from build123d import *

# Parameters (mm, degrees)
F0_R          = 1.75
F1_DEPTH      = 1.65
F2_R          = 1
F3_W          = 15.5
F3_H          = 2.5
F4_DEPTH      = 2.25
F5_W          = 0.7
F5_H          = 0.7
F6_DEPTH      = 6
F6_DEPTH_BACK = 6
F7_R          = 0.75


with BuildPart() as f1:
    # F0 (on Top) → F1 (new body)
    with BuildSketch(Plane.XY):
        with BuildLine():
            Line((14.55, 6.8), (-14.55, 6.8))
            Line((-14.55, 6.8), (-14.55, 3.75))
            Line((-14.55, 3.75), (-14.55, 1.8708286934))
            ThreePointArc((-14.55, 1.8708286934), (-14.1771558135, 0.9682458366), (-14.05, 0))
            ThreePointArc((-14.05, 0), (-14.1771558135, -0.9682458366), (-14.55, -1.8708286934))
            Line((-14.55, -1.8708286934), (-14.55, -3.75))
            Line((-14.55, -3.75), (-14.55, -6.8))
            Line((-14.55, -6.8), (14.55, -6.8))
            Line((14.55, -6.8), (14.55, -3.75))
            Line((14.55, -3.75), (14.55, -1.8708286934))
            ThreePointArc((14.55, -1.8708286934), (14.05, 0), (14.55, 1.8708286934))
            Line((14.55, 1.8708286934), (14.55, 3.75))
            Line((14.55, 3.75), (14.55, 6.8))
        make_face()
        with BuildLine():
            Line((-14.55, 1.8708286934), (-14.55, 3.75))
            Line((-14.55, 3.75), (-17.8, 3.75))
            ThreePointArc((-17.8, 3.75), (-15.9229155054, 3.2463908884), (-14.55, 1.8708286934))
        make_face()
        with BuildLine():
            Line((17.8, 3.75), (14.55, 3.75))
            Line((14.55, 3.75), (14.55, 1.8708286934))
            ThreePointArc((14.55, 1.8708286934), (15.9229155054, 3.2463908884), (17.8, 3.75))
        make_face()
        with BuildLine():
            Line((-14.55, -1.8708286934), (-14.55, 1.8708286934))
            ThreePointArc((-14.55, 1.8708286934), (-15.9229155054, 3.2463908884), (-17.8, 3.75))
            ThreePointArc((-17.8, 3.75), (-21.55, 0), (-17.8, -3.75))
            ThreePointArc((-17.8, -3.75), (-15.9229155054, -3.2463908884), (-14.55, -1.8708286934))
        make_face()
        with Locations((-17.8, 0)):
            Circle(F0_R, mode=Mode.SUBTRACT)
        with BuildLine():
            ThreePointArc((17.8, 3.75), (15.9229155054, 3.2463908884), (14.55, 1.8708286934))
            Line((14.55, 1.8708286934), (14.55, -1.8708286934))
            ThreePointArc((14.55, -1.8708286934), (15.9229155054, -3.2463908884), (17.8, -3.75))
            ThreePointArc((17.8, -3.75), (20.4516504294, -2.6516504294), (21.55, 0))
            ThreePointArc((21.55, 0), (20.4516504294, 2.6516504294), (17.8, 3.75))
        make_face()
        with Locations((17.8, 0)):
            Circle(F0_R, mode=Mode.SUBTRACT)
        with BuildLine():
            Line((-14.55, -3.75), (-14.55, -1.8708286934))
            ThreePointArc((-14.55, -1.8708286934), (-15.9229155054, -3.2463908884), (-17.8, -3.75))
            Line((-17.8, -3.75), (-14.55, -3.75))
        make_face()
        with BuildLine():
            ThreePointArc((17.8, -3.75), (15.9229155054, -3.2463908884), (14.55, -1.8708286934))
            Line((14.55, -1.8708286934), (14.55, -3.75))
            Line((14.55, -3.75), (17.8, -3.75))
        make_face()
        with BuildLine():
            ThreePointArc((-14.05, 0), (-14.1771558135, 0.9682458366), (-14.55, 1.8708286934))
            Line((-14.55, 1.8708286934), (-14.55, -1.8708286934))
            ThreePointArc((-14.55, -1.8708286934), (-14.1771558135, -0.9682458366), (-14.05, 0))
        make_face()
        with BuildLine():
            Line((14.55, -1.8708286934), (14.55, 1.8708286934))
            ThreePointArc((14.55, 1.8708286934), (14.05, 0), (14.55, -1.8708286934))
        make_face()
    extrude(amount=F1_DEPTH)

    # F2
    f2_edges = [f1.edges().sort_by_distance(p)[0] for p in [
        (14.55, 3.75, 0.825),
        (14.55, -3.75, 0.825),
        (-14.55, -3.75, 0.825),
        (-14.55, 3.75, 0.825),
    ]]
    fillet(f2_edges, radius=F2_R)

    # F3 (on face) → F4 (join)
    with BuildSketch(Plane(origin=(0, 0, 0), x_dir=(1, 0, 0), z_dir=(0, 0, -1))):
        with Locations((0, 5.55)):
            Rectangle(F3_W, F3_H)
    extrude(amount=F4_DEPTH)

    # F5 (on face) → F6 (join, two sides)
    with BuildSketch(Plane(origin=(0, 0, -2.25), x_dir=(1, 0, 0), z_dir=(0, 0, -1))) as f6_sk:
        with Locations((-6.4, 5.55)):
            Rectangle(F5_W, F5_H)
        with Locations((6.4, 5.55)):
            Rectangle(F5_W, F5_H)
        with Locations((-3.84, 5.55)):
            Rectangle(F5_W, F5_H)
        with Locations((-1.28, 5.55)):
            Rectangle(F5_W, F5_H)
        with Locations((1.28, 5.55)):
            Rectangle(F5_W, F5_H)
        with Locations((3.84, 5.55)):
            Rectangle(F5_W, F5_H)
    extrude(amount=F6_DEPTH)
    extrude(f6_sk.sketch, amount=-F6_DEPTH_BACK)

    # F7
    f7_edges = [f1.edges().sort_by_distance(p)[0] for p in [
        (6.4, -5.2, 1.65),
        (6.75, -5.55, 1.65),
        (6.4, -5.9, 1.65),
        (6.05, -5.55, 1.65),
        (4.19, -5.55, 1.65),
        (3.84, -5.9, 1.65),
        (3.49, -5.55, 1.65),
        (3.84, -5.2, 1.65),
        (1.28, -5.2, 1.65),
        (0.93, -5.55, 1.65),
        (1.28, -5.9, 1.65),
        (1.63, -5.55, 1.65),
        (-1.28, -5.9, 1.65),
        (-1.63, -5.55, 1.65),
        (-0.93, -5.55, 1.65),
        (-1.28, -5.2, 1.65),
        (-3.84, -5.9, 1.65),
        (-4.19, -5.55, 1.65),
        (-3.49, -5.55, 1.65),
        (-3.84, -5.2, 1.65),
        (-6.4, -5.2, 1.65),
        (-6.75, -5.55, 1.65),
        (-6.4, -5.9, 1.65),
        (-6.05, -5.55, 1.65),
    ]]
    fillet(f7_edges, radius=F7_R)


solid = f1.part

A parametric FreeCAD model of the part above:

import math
import FreeCAD as App
import Part
import Sketcher

V = App.Vector
Q = App.Units.Quantity


def edges_at(feature, points):
    """Names of the edges that pass closest to the given points."""
    edges = feature.Shape.Edges
    near = lambda p: min(range(len(edges)), key=lambda i: edges[i].distToShape(Part.Vertex(*p))[0])
    return sorted({f"Edge{near(p) + 1}" for p in points})


def add_polygon(sketch, points):
    """Adds a closed chain of lines whose ends are joined by coincident constraints."""
    first, n = sketch.GeometryCount, len(points)
    for a, b in zip(points, points[1:] + points[:1]):
        sketch.addGeometry(Part.LineSegment(App.Vector(*a, 0), App.Vector(*b, 0)), False)
    for i in range(n):
        sketch.addConstraint(Sketcher.Constraint("Coincident", first + i, 2, first + (i + 1) % n, 1))

doc = App.newDocument("Part")
body = doc.addObject("PartDesign::Body", "Body")

sketch1 = doc.addObject("Sketcher::SketchObject", "Sketch")
body.addObject(sketch1)
sketch1.AttachmentSupport = (doc.XY_Plane, [""])
sketch1.MapMode = "FlatFace"
sketch1.addGeometry([
    Part.LineSegment(V(14.55, -6.8, 0), V(14.55, -3.75, 0)),
    Part.LineSegment(V(14.55, -3.75, 0), V(17.8, -3.75, 0)),
    Part.ArcOfCircle(Part.Circle(V(17.8, 0, 0), V(0, 0, 1), 3.75), math.radians(-90), math.radians(0)),
    Part.ArcOfCircle(Part.Circle(V(17.8, 0, 0), V(0, 0, 1), 3.75), math.radians(0), math.radians(90)),
    Part.LineSegment(V(17.8, 3.75, 0), V(14.55, 3.75, 0)),
    Part.LineSegment(V(14.55, 3.75, 0), V(14.55, 6.8, 0)),
    Part.LineSegment(V(14.55, 6.8, 0), V(-14.55, 6.8, 0)),
    Part.LineSegment(V(-14.55, 6.8, 0), V(-14.55, 3.75, 0)),
    Part.LineSegment(V(-14.55, 3.75, 0), V(-17.8, 3.75, 0)),
    Part.ArcOfCircle(Part.Circle(V(-17.8, 0, 0), V(0, 0, 1), 3.75), math.radians(90), math.radians(270)),
    Part.LineSegment(V(-17.8, -3.75, 0), V(-14.55, -3.75, 0)),
    Part.LineSegment(V(-14.55, -3.75, 0), V(-14.55, -6.8, 0)),
    Part.LineSegment(V(-14.55, -6.8, 0), V(14.55, -6.8, 0)),
    Part.Circle(V(-17.8, 0, 0), V(0, 0, 1), 1.75),
    Part.Circle(V(17.8, 0, 0), V(0, 0, 1), 1.75),
], False)
sketch1.addConstraint([
    Sketcher.Constraint("Coincident", 0, 2, 1, 1),
    Sketcher.Constraint("Tangent", 1, 2, 2, 1),
    Sketcher.Constraint("Tangent", 2, 2, 3, 1),
    Sketcher.Constraint("Tangent", 3, 2, 4, 1),
    Sketcher.Constraint("Coincident", 4, 2, 5, 1),
    Sketcher.Constraint("Coincident", 5, 2, 6, 1),
    Sketcher.Constraint("Coincident", 6, 2, 7, 1),
    Sketcher.Constraint("Coincident", 7, 2, 8, 1),
    Sketcher.Constraint("Tangent", 8, 2, 9, 1),
    Sketcher.Constraint("Tangent", 9, 2, 10, 1),
    Sketcher.Constraint("Coincident", 10, 2, 11, 1),
    Sketcher.Constraint("Coincident", 11, 2, 12, 1),
    Sketcher.Constraint("Coincident", 12, 2, 0, 1),
    Sketcher.Constraint("Vertical", 0),
    Sketcher.Constraint("Horizontal", 1),
    Sketcher.Constraint("Horizontal", 4),
    Sketcher.Constraint("Vertical", 5),
    Sketcher.Constraint("Horizontal", 6),
    Sketcher.Constraint("Vertical", 7),
    Sketcher.Constraint("Horizontal", 8),
    Sketcher.Constraint("Horizontal", 10),
    Sketcher.Constraint("Vertical", 11),
    Sketcher.Constraint("Horizontal", 12),
    Sketcher.Constraint("Coincident", 13, 3, 9, 3),
    Sketcher.Constraint("Coincident", 14, 3, 2, 3),
    Sketcher.Constraint("Equal", 2, 3),
    Sketcher.Constraint("Equal", 3, 9),
    Sketcher.Constraint("Equal", 13, 14),
    Sketcher.Constraint("Symmetric", 2, 3, 9, 3, -1, 1),
    Sketcher.Constraint("Symmetric", 5, 2, 11, 2, -1, 1),
    Sketcher.Constraint("Symmetric", 4, 2, 7, 2, -2),
    Sketcher.Constraint("PointOnObject", 2, 2, -1),
    Sketcher.Constraint("Vertical", 0, 2, 4, 2),
    Sketcher.Constraint("Diameter", 13, Q("3.5 mm")),
    Sketcher.Constraint("Radius", 2, Q("3.75 mm")),
    Sketcher.Constraint("DistanceX", 6, 2, 6, 1, Q("29.1 mm")),
    Sketcher.Constraint("DistanceX", 0, 2, 2, 2, Q("7 mm")),
    Sketcher.Constraint("DistanceY", 0, 1, 0, 2, Q("3.05 mm")),
])
pad1 = doc.addObject("PartDesign::Pad", "Pad")
body.addObject(pad1)
pad1.Profile = sketch1
pad1.Length = 1.65
doc.recompute()

fillet = doc.addObject("PartDesign::Fillet", "Fillet")
body.addObject(fillet)
fillet.Base = (pad1, edges_at(pad1, [
    (14.55, 3.75, 0.825),
    (14.55, -3.75, 0.825),
    (-14.55, -3.75, 0.825),
    (-14.55, 3.75, 0.825),
]))
fillet.Radius = 1

sketch2 = doc.addObject("Sketcher::SketchObject", "Sketch001")
body.addObject(sketch2)
sketch2.AttachmentSupport = (doc.XY_Plane, [""])
sketch2.MapMode = "FlatFace"
add_polygon(sketch2, [(-7.75, -6.8), (-7.75, -4.3), (7.75, -4.3), (7.75, -6.8)])
sketch2.addConstraint([
    Sketcher.Constraint("Vertical", 0),
    Sketcher.Constraint("Horizontal", 1),
    Sketcher.Constraint("Vertical", 2),
    Sketcher.Constraint("Horizontal", 3),
    Sketcher.Constraint("DistanceX", 1, 1, 1, 2, Q("15.5 mm")),
    Sketcher.Constraint("DistanceY", 0, 1, 0, 2, Q("2.5 mm")),
    Sketcher.Constraint("DistanceY", 0, 2, -1, 1, Q("4.3 mm")),
    Sketcher.Constraint("DistanceX", 0, 2, -1, 1, Q("7.75 mm")),
])
pad2 = doc.addObject("PartDesign::Pad", "Pad001")
body.addObject(pad2)
pad2.Profile = sketch2
pad2.Length = 2.25
pad2.Reversed = True

sketch3 = doc.addObject("Sketcher::SketchObject", "Sketch002")
body.addObject(sketch3)
sketch3.AttachmentSupport = (doc.XY_Plane, [""])
sketch3.MapMode = "FlatFace"
sketch3.AttachmentOffset = App.Placement(V(0, 0, -2.25), App.Rotation())
add_polygon(sketch3, [(-6.75, -5.9), (-6.75, -5.2), (-6.05, -5.2), (-6.05, -5.9)])
add_polygon(sketch3, [(6.05, -5.9), (6.05, -5.2), (6.75, -5.2), (6.75, -5.9)])
add_polygon(sketch3, [(-4.19, -5.9), (-4.19, -5.2), (-3.49, -5.2), (-3.49, -5.9)])
add_polygon(sketch3, [(-1.63, -5.9), (-1.63, -5.2), (-0.93, -5.2), (-0.93, -5.9)])
add_polygon(sketch3, [(0.93, -5.9), (0.93, -5.2), (1.63, -5.2), (1.63, -5.9)])
add_polygon(sketch3, [(3.49, -5.9), (3.49, -5.2), (4.19, -5.2), (4.19, -5.9)])
sketch3.addConstraint([
    Sketcher.Constraint("Vertical", 0),
    Sketcher.Constraint("Horizontal", 1),
    Sketcher.Constraint("Vertical", 2),
    Sketcher.Constraint("Horizontal", 3),
    Sketcher.Constraint("Vertical", 4),
    Sketcher.Constraint("Horizontal", 5),
    Sketcher.Constraint("Vertical", 6),
    Sketcher.Constraint("Horizontal", 7),
    Sketcher.Constraint("Vertical", 8),
    Sketcher.Constraint("Horizontal", 9),
    Sketcher.Constraint("Vertical", 10),
    Sketcher.Constraint("Horizontal", 11),
    Sketcher.Constraint("Vertical", 12),
    Sketcher.Constraint("Horizontal", 13),
    Sketcher.Constraint("Vertical", 14),
    Sketcher.Constraint("Horizontal", 15),
    Sketcher.Constraint("Vertical", 16),
    Sketcher.Constraint("Horizontal", 17),
    Sketcher.Constraint("Vertical", 18),
    Sketcher.Constraint("Horizontal", 19),
    Sketcher.Constraint("Vertical", 20),
    Sketcher.Constraint("Horizontal", 21),
    Sketcher.Constraint("Vertical", 22),
    Sketcher.Constraint("Horizontal", 23),
    Sketcher.Constraint("Symmetric", 1, 2, 4, 2, -2),
    Sketcher.Constraint("Symmetric", 3, 2, 6, 2, -2),
    Sketcher.Constraint("Symmetric", 13, 2, 16, 2, -2),
    Sketcher.Constraint("Symmetric", 15, 2, 18, 2, -2),
    Sketcher.Constraint("Symmetric", 9, 2, 20, 2, -2),
    Sketcher.Constraint("Symmetric", 11, 2, 22, 2, -2),
    Sketcher.Constraint("Horizontal", 5, 2, 8, 2),
    Sketcher.Constraint("Horizontal", 7, 2, 10, 2),
    Sketcher.Constraint("Horizontal", 9, 2, 12, 2),
    Sketcher.Constraint("Horizontal", 11, 2, 14, 2),
    Sketcher.Constraint("Equal", 7, 9),
    Sketcher.Constraint("Equal", 11, 13),
    Sketcher.Constraint("Equal", 23, 0),
    Sketcher.Constraint("DistanceX", 1, 1, 1, 2, Q("0.7 mm")),
    Sketcher.Constraint("DistanceY", 0, 2, -1, 1, Q("5.2 mm")),
    Sketcher.Constraint("DistanceX", 1, 2, 4, 2, Q("12.1 mm")),
    Sketcher.Constraint("DistanceX", 8, 2, -1, 1, Q("4.19 mm")),
    Sketcher.Constraint("DistanceX", 12, 2, -1, 1, Q("1.63 mm")),
])
pad3 = doc.addObject("PartDesign::Pad", "Pad002")
body.addObject(pad3)
pad3.Profile = sketch3
pad3.Type = "TwoLengths"
pad3.Length = 6
pad3.Length2 = 6
pad3.Reversed = True
doc.recompute()

fillet2 = doc.addObject("PartDesign::Fillet", "Fillet001")
body.addObject(fillet2)
fillet2.Base = (pad3, edges_at(pad3, [
    (6.4, -5.2, 1.65),
    (6.75, -5.55, 1.65),
    (6.4, -5.9, 1.65),
    (6.05, -5.55, 1.65),
    (4.19, -5.55, 1.65),
    (3.84, -5.9, 1.65),
    (3.49, -5.55, 1.65),
    (3.84, -5.2, 1.65),
    (1.28, -5.2, 1.65),
    (0.93, -5.55, 1.65),
    (1.28, -5.9, 1.65),
    (1.63, -5.55, 1.65),
    (-1.28, -5.9, 1.65),
    (-1.63, -5.55, 1.65),
    (-0.93, -5.55, 1.65),
    (-1.28, -5.2, 1.65),
    (-3.84, -5.9, 1.65),
    (-4.19, -5.55, 1.65),
    (-3.49, -5.55, 1.65),
    (-3.84, -5.2, 1.65),
    (-6.4, -5.2, 1.65),
    (-6.75, -5.55, 1.65),
    (-6.4, -5.9, 1.65),
    (-6.05, -5.55, 1.65),
]))
fillet2.Radius = 0.75

doc.recompute()
